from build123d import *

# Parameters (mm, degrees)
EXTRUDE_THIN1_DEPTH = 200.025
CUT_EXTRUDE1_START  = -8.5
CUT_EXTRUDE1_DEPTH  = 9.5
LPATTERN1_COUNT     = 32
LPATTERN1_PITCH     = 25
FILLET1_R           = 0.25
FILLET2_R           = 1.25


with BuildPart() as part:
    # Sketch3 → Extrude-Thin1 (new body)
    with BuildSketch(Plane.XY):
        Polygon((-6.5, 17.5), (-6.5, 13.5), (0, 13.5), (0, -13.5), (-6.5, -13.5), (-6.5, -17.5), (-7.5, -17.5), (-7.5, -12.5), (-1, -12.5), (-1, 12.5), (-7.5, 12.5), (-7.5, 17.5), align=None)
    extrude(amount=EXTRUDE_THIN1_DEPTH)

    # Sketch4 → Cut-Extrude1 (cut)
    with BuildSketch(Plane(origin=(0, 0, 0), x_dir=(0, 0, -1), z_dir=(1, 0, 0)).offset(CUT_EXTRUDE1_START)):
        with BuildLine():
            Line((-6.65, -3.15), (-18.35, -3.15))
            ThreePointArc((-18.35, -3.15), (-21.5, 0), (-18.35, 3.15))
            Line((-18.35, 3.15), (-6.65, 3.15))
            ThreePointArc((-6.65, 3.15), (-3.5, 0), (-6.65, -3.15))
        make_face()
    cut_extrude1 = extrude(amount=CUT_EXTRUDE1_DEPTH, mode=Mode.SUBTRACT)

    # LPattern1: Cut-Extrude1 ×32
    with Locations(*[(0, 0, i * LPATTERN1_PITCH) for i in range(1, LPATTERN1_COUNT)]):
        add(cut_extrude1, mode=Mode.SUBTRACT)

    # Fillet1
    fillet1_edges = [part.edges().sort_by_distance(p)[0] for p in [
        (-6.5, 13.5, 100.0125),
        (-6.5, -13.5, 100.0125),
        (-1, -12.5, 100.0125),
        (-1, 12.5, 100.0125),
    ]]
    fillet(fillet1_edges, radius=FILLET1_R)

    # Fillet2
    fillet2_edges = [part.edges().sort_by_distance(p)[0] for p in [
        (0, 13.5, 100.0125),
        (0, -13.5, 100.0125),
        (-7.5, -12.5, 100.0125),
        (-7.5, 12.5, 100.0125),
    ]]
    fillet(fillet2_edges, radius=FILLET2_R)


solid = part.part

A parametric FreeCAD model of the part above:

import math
import FreeCAD as App
import Part
import Sketcher


def edges_at(feature, points):
    """Names of the edges that pass closest to the given points."""
    edges = feature.Shape.Edges
    near = lambda p: min(range(len(edges)), key=lambda i: edges[i].distToShape(Part.Vertex(*p))[0])
    return sorted({f"Edge{near(p) + 1}" for p in points})


def add_polygon(sketch, points):
    """Adds a closed chain of lines whose ends are joined by coincident constraints."""
    first, n = sketch.GeometryCount, len(points)
    for a, b in zip(points, points[1:] + points[:1]):
        sketch.addGeometry(Part.LineSegment(App.Vector(*a, 0), App.Vector(*b, 0)), False)
    for i in range(n):
        sketch.addConstraint(Sketcher.Constraint("Coincident", first + i, 2, first + (i + 1) % n, 1))

doc = App.newDocument("Part")
body = doc.addObject("PartDesign::Body", "Body")

sketch1 = doc.addObject("Sketcher::SketchObject", "Sketch")
body.addObject(sketch1)
sketch1.AttachmentSupport = (doc.XY_Plane, [""])
sketch1.MapMode = "FlatFace"
add_polygon(sketch1, [(-6.5, 13.5), (-6.5, 17.5), (-7.5, 17.5), (-7.5, 12.5), (-1, 12.5), (-1, -12.5), (-7.5, -12.5), (-7.5, -17.5), (-6.5, -17.5), (-6.5, -13.5), (0, -13.5), (0, 13.5)])
sketch1.addConstraint([
    Sketcher.Constraint("Vertical", 0),
    Sketcher.Constraint("Horizontal", 1),
    Sketcher.Constraint("Vertical", 2),
    Sketcher.Constraint("Horizontal", 3),
    Sketcher.Constraint("Vertical", 4),
    Sketcher.Constraint("Horizontal", 5),
    Sketcher.Constraint("Vertical", 6),
    Sketcher.Constraint("Horizontal", 7),
    Sketcher.Constraint("Vertical", 8),
    Sketcher.Constraint("Horizontal", 9),
    Sketcher.Constraint("Vertical", 10),
    Sketcher.Constraint("Horizontal", 11),
    Sketcher.Constraint("Symmetric", 9, 2, 10, 2, -1, 1),
    Sketcher.Constraint("Symmetric", 2, 2, 5, 2, -1),
    Sketcher.Constraint("Symmetric", 0, 2, 7, 2, -1),
    Sketcher.Constraint("Equal", 5, 9),
    Sketcher.Constraint("DistanceX", 1, 2, 1, 1, 1.0),
    Sketcher.Constraint("DistanceY", 0, 1, 0, 2, 4.0),
    Sketcher.Constraint("DistanceY", 2, 2, 2, 1, 5.0),
    Sketcher.Constraint("DistanceY", 4, 2, 4, 1, 25.0),
    Sketcher.Constraint("DistanceX", 3, 1, 3, 2, 6.5),
])
pad1 = doc.addObject("PartDesign::Pad", "Pad")
body.addObject(pad1)
pad1.Profile = sketch1
pad1.Length = 200.025

sketch2 = doc.addObject("Sketcher::SketchObject", "Sketch001")
body.addObject(sketch2)
sketch2.AttachmentSupport = (doc.YZ_Plane, [""])
sketch2.MapMode = "FlatFace"
sketch2.AttachmentOffset = App.Placement(App.Vector(0, 0, -8.5), App.Rotation())
sketch2.addGeometry([
    Part.LineSegment(App.Vector(-3.15, 18.35, 0), App.Vector(-3.15, 6.65, 0)),
    Part.ArcOfCircle(Part.Circle(App.Vector(0, 6.65, 0), App.Vector(0, 0, 1), 3.15), math.radians(180), math.radians(360)),
    Part.LineSegment(App.Vector(3.15, 6.65, 0), App.Vector(3.15, 18.35, 0)),
    Part.ArcOfCircle(Part.Circle(App.Vector(0, 18.35, 0), App.Vector(0, 0, 1), 3.15), math.radians(0), math.radians(180)),
], False)
sketch2.addConstraint([
    Sketcher.Constraint("Tangent", 0, 2, 1, 1),
    Sketcher.Constraint("Tangent", 1, 2, 2, 1),
    Sketcher.Constraint("Tangent", 2, 2, 3, 1),
    Sketcher.Constraint("Tangent", 3, 2, 0, 1),
    Sketcher.Constraint("Vertical", 0),
    Sketcher.Constraint("Vertical", 2),
    Sketcher.Constraint("PointOnObject", 1, 3, -2),
    Sketcher.Constraint("Radius", 1, 3.15),
    Sketcher.Constraint("DistanceY", 0, 2, 0, 1, 11.7),
    Sketcher.Constraint("DistanceY", -1, 1, 1, 3, 6.65),
])
pocket1 = doc.addObject("PartDesign::Pocket", "Pocket")
body.addObject(pocket1)
pocket1.Profile = sketch2
pocket1.Length = 9.5
pocket1.Reversed = True
doc.recompute()

linearpattern = doc.addObject("PartDesign::LinearPattern", "LinearPattern")
body.addObject(linearpattern)
linearpattern.Originals = [pocket1]
linearpattern.Direction = (doc.Z_Axis, [""])
linearpattern.Mode = "offset"
linearpattern.Offset = 25
linearpattern.Occurrences = 32
body.Tip = linearpattern
doc.recompute()

fillet = doc.addObject("PartDesign::Fillet", "Fillet")
body.addObject(fillet)
fillet.Base = (linearpattern, edges_at(linearpattern, [
    (-6.5, 13.5, 100.013),
    (-6.5, -13.5, 100.013),
    (-1, -12.5, 100.013),
    (-1, 12.5, 100.013),
]))
fillet.Radius = 0.25
doc.recompute()

fillet2 = doc.addObject("PartDesign::Fillet", "Fillet001")
body.addObject(fillet2)
fillet2.Base = (fillet, edges_at(fillet, [
    (0, 13.5, 100.013),
    (0, -13.5, 100.013),
    (-7.5, -12.5, 100.013),
    (-7.5, 12.5, 100.013),
]))
fillet2.Radius = 1.25

doc.recompute()
